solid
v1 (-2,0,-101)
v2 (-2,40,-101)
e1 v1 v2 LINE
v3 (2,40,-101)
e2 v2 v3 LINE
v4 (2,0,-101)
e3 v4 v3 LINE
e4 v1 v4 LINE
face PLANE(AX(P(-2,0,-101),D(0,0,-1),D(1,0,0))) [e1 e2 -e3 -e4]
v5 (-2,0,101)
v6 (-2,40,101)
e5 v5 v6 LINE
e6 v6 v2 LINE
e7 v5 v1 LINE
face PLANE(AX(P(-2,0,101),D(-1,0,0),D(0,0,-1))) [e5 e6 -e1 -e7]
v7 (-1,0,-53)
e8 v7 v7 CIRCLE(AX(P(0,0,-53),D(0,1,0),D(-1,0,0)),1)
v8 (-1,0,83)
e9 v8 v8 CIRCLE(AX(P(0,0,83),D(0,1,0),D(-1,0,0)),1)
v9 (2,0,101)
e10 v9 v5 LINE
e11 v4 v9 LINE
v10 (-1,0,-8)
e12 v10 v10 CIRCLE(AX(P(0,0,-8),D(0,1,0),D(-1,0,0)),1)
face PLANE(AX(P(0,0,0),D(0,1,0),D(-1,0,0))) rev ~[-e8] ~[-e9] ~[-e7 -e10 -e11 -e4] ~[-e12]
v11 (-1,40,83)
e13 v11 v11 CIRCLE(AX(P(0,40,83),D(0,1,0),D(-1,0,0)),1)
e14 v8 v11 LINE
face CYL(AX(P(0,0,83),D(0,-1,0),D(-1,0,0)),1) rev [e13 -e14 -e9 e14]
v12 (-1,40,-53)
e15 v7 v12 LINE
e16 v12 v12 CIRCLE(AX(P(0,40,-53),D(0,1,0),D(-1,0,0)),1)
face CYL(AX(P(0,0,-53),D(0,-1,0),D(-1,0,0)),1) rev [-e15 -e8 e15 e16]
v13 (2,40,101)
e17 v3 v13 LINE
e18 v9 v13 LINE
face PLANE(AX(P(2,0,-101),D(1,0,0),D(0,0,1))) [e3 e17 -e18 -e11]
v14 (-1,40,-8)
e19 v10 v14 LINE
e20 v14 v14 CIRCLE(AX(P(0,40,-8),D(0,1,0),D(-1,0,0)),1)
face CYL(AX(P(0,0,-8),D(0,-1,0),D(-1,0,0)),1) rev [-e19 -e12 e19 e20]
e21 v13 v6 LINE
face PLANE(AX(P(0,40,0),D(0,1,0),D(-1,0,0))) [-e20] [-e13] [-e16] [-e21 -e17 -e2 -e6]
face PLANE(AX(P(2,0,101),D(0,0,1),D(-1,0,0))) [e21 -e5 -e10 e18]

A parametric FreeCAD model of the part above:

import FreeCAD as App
import Part
import Sketcher

doc = App.newDocument("Part")
body = doc.addObject("PartDesign::Body", "Body")

sketch1 = body.newObject("Sketcher::SketchObject", "Sketch")
sketch1.AttachmentSupport = (doc.getObject("XZ_Plane"), [""])
sketch1.MapMode = "FlatFace"
sketch1.addGeometry(Part.LineSegment(App.Vector(2, -101, 0), App.Vector(-2, -101, 0)), False)
sketch1.addGeometry(Part.LineSegment(App.Vector(-2, -101, 0), App.Vector(-2, 101, 0)), False)
sketch1.addGeometry(Part.LineSegment(App.Vector(-2, 101, 0), App.Vector(2, 101, 0)), False)
sketch1.addGeometry(Part.LineSegment(App.Vector(2, 101, 0), App.Vector(2, -101, 0)), False)
sketch1.addGeometry(Part.Circle(App.Vector(0, -53, 0), App.Vector(0, 0, 1), 1), False)
sketch1.addGeometry(Part.Circle(App.Vector(0, -8, 0), App.Vector(0, 0, 1), 1), False)
sketch1.addGeometry(Part.Circle(App.Vector(0, 83, 0), App.Vector(0, 0, 1), 1), False)
sketch1.addConstraint(Sketcher.Constraint("Coincident", 0, 2, 1, 1))
sketch1.addConstraint(Sketcher.Constraint("Coincident", 1, 2, 2, 1))
sketch1.addConstraint(Sketcher.Constraint("Coincident", 2, 2, 3, 1))
sketch1.addConstraint(Sketcher.Constraint("Coincident", 3, 2, 0, 1))
sketch1.addConstraint(Sketcher.Constraint("Horizontal", 0))
sketch1.addConstraint(Sketcher.Constraint("Vertical", 1))
sketch1.addConstraint(Sketcher.Constraint("Horizontal", 2))
sketch1.addConstraint(Sketcher.Constraint("Vertical", 3))
sketch1.addConstraint(Sketcher.Constraint("Equal", 4, 5))
sketch1.addConstraint(Sketcher.Constraint("Equal", 5, 6))
sketch1.addConstraint(Sketcher.Constraint("Symmetric", 0, 2, 2, 2, -1, 1))
sketch1.addConstraint(Sketcher.Constraint("PointOnObject", 4, 3, -2))
sketch1.addConstraint(Sketcher.Constraint("PointOnObject", 5, 3, -2))
sketch1.addConstraint(Sketcher.Constraint("PointOnObject", 6, 3, -2))
sketch1.addConstraint(Sketcher.Constraint("Diameter", 4, 2.0))
sketch1.addConstraint(Sketcher.Constraint("DistanceX", 0, 2, 0, 1, 4.0))
sketch1.addConstraint(Sketcher.Constraint("DistanceY", 1, 1, 1, 2, 202.0))
sketch1.addConstraint(Sketcher.Constraint("DistanceY", 0, 2, 4, 3, 48.0))
sketch1.addConstraint(Sketcher.Constraint("DistanceY", 0, 2, 5, 3, 93.0))
sketch1.addConstraint(Sketcher.Constraint("DistanceY", 6, 3, 1, 2, 18.0))
pad1 = body.newObject("PartDesign::Pad", "Pad")
pad1.Profile = sketch1
pad1.Length = 40
pad1.Reversed = True

doc.recompute()
